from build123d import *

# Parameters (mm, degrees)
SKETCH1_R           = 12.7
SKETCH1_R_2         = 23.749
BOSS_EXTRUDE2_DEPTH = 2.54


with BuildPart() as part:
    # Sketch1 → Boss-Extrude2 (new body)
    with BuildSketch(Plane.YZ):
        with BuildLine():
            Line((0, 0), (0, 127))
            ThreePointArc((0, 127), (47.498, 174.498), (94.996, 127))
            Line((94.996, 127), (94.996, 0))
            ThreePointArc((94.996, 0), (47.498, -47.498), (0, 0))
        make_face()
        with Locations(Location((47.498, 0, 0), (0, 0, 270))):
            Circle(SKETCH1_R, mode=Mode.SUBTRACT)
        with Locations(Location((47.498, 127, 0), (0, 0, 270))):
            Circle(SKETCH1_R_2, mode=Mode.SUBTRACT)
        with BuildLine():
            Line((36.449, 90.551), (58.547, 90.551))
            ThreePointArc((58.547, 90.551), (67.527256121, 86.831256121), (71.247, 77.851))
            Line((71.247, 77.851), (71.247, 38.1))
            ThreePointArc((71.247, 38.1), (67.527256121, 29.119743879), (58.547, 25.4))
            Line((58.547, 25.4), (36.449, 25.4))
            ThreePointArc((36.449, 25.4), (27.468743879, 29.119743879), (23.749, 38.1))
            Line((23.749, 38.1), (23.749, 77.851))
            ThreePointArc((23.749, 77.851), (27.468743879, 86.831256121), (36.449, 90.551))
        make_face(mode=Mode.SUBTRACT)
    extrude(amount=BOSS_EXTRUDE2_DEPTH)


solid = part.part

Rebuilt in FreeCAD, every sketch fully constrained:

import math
import FreeCAD as App
import Part
import Sketcher

V = App.Vector
Q = App.Units.Quantity

doc = App.newDocument("Part")
body = doc.addObject("PartDesign::Body", "Body")

sketch1 = body.newObject("Sketcher::SketchObject", "Sketch")
sketch1.AttachmentSupport = (doc.getObject("YZ_Plane"), [""])
sketch1.MapMode = "FlatFace"
sketch1.addGeometry([
    Part.LineSegment(V(0, 127, 0), V(0, 0, 0)),
    Part.ArcOfCircle(Part.Circle(V(47, 0, 0), V(0, 0, 1), 47), math.radians(180), math.radians(360)),
    Part.LineSegment(V(95, 0, 0), V(95, 127, 0)),
    Part.ArcOfCircle(Part.Circle(V(47, 127, 0), V(0, 0, 1), 47), math.radians(0), math.radians(180)),
    Part.Circle(V(47, 0, 0), V(0, 0, 1), 13),
    Part.LineSegment(V(36, 91, 0), V(59, 91, 0)),
    Part.ArcOfCircle(Part.Circle(V(59, 78, 0), V(0, 0, 1), 13), math.radians(0), math.radians(90)),
    Part.LineSegment(V(71, 78, 0), V(71, 38, 0)),
    Part.ArcOfCircle(Part.Circle(V(59, 38, 0), V(0, 0, 1), 13), math.radians(-90), math.radians(0)),
    Part.LineSegment(V(59, 25, 0), V(36, 25, 0)),
    Part.ArcOfCircle(Part.Circle(V(36, 38, 0), V(0, 0, 1), 13), math.radians(180), math.radians(270)),
    Part.LineSegment(V(24, 38, 0), V(24, 78, 0)),
    Part.ArcOfCircle(Part.Circle(V(36, 78, 0), V(0, 0, 1), 13), math.radians(90), math.radians(180)),
    Part.Circle(V(47, 127, 0), V(0, 0, 1), 24),
], False)
sketch1.addConstraint([
    Sketcher.Constraint("Tangent", 0, 2, 1, 1),
    Sketcher.Constraint("Tangent", 1, 2, 2, 1),
    Sketcher.Constraint("Tangent", 2, 2, 3, 1),
    Sketcher.Constraint("Tangent", 3, 2, 0, 1),
    Sketcher.Constraint("Tangent", 5, 2, 6, 2),
    Sketcher.Constraint("Tangent", 6, 1, 7, 1),
    Sketcher.Constraint("Tangent", 7, 2, 8, 2),
    Sketcher.Constraint("Tangent", 8, 1, 9, 1),
    Sketcher.Constraint("Tangent", 9, 2, 10, 2),
    Sketcher.Constraint("Tangent", 10, 1, 11, 1),
    Sketcher.Constraint("Tangent", 11, 2, 12, 2),
    Sketcher.Constraint("Tangent", 12, 1, 5, 1),
    Sketcher.Constraint("Vertical", 0),
    Sketcher.Constraint("Vertical", 2),
    Sketcher.Constraint("Horizontal", 5),
    Sketcher.Constraint("Vertical", 7),
    Sketcher.Constraint("Horizontal", 9),
    Sketcher.Constraint("Vertical", 11),
    Sketcher.Constraint("Coincident", 0, 2, -1, 1),
    Sketcher.Constraint("Coincident", 4, 3, 1, 3),
    Sketcher.Constraint("Coincident", 13, 3, 3, 3),
    Sketcher.Constraint("Equal", 4, 6),
    Sketcher.Constraint("Equal", 6, 8),
    Sketcher.Constraint("Equal", 8, 10),
    Sketcher.Constraint("Equal", 10, 12),
    Sketcher.Constraint("Diameter", 4, Q("1 in")),
    Sketcher.Constraint("Diameter", 13, Q("1.87 in")),
    Sketcher.Constraint("DistanceY", 0, 2, 0, 1, Q("5 in")),
    Sketcher.Constraint("Radius", 1, Q("1.87 in")),
    Sketcher.Constraint("DistanceY", -1, 1, 8, 1, Q("1 in")),
    Sketcher.Constraint("DistanceX", 5, 1, 5, 2, Q("0.87 in")),
    Sketcher.Constraint("DistanceY", 7, 2, 7, 1, Q("1.565 in")),
    Sketcher.Constraint("DistanceX", -1, 1, 6, 3, Q("2.305 in")),
])
pad1 = body.newObject("PartDesign::Pad", "Pad")
pad1.Profile = sketch1
pad1.Length = Q("0.1 in")

doc.recompute()
